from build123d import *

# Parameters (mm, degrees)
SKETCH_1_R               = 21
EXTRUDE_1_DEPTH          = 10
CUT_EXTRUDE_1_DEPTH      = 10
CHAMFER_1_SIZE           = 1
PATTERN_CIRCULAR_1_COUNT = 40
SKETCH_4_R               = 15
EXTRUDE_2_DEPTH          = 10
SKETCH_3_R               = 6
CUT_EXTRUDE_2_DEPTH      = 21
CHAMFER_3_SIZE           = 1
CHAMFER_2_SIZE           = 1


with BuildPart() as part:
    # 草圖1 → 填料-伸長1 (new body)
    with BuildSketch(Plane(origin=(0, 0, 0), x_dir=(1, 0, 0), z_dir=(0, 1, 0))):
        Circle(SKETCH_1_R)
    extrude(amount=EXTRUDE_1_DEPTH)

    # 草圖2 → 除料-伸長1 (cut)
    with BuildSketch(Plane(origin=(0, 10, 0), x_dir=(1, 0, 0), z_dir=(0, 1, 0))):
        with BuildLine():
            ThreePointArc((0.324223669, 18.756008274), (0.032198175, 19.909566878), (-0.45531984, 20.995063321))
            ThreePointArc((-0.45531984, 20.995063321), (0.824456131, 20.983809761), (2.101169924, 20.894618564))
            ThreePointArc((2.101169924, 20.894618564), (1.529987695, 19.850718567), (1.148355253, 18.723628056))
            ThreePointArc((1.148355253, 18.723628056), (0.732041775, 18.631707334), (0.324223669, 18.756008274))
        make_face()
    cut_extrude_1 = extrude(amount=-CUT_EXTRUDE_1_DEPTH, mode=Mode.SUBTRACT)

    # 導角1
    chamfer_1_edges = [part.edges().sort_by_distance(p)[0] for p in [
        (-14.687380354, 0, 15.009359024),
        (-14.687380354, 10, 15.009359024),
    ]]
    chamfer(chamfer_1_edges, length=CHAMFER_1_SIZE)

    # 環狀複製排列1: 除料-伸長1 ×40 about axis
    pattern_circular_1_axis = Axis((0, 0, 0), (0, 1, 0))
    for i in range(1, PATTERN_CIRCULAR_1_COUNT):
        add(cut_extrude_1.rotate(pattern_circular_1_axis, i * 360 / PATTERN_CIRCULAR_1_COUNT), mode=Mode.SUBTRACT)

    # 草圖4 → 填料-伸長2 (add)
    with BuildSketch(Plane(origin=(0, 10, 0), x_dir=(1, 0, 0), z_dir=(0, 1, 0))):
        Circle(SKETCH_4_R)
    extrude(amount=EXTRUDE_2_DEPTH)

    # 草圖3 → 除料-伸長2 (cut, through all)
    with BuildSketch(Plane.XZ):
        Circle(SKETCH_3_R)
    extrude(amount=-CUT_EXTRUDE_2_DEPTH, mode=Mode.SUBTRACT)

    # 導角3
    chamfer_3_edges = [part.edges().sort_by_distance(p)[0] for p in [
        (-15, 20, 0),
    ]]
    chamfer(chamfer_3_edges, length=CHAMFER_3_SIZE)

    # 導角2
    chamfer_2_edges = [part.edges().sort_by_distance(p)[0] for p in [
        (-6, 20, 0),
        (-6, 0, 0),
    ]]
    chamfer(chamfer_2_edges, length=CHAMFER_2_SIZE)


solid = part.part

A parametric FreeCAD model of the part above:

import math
import FreeCAD as App
import Part
import Sketcher

V = App.Vector


def edges_at(feature, points):
    """Names of the edges that pass closest to the given points."""
    edges = feature.Shape.Edges
    near = lambda p: min(range(len(edges)), key=lambda i: edges[i].distToShape(Part.Vertex(*p))[0])
    return sorted({f"Edge{near(p) + 1}" for p in points})

doc = App.newDocument("Part")
body = doc.addObject("PartDesign::Body", "Body")

# Sketch on XZ plane
sketch1 = doc.addObject("Sketcher::SketchObject", "Sketch")
body.addObject(sketch1)
sketch1.AttachmentSupport = (doc.XZ_Plane, [""])
sketch1.MapMode = "FlatFace"
sketch1.addGeometry(Part.Circle(V(0, 0, 0), V(0, 0, 1), 21), False)
sketch1.addConstraint([
    Sketcher.Constraint("Coincident", 0, 3, -1, 1),
    Sketcher.Constraint("Diameter", 0, 42.0),
])
pad1 = doc.addObject("PartDesign::Pad", "Pad")
body.addObject(pad1)
pad1.Profile = sketch1
pad1.Length = 10
pad1.Reversed = True

# Sketch on XZ plane
sketch2 = doc.addObject("Sketcher::SketchObject", "Sketch001")
body.addObject(sketch2)
sketch2.AttachmentSupport = (doc.XZ_Plane, [""])
sketch2.MapMode = "FlatFace"
sketch2.AttachmentOffset = App.Placement(V(0, 0, -10), App.Rotation())
sketch2.addGeometry([
    Part.ArcOfCircle(Part.Circle(V(-6.427876, -17.660444, 0), V(0, 0, 1), 6.840403), math.radians(-29.175652), math.radians(-9.216225)),
    Part.ArcOfCircle(Part.Circle(V(0.76502, -19.47106, 0), V(0, 0, 1), 0.84), math.radians(62.848076), math.radians(121.651924)),
    Part.ArcOfCircle(Part.Circle(V(7.793684, -17.101678, 0), V(0, 0, 1), 6.840403), math.radians(-166.283775), math.radians(-146.324348)),
    Part.ArcOfCircle(Part.Circle(V(0, 0, 0), V(0, 0, 1), 21), math.radians(-91.242379), math.radians(-84.257621)),
], False)
sketch2.addConstraint([
    Sketcher.Constraint("Coincident", 0, 2, 1, 2),
    Sketcher.Constraint("Coincident", 1, 1, 2, 1),
    Sketcher.Constraint("Coincident", 2, 2, 3, 2),
    Sketcher.Constraint("Coincident", 3, 1, 0, 1),
    Sketcher.Constraint("Coincident", 3, 3, -1, 1),
    Sketcher.Constraint("Equal", 0, 2),
    Sketcher.Constraint("Radius", 3, 21.0),
    Sketcher.Constraint("Radius", 1, 0.84),
    Sketcher.Constraint("Radius", 0, 6.840403),
    Sketcher.Constraint("DistanceX", 0, 3, 0, 2, 6.7521),
    Sketcher.Constraint("DistanceX", -1, 1, 1, 3, 0.76502),
    Sketcher.Constraint("DistanceY", 1, 3, -1, 1, 19.47106),
    Sketcher.Constraint("DistanceY", 0, 2, -1, 1, 18.756008),
    Sketcher.Constraint("DistanceY", 1, 1, -1, 1, 18.723628),
    Sketcher.Constraint("DistanceX", -1, 1, 2, 2, 2.10117),
])
pocket1 = doc.addObject("PartDesign::Pocket", "Pocket")
body.addObject(pocket1)
pocket1.Profile = sketch2
pocket1.Length = 10
pocket1.Reversed = True
doc.recompute()

chamfer = doc.addObject("PartDesign::Chamfer", "Chamfer")
body.addObject(chamfer)
chamfer.Base = (pocket1, edges_at(pocket1, [(-14.687, 0, 15.009), (-14.687, 10, 15.009)]))
chamfer.Size = 1
doc.recompute()

polarpattern = doc.addObject("PartDesign::PolarPattern", "PolarPattern")
body.addObject(polarpattern)
polarpattern.Originals = [pocket1]
polarpattern.Axis = (doc.Y_Axis, [""])
polarpattern.Angle = 360
polarpattern.Occurrences = 40
body.Tip = polarpattern

# Sketch on XZ plane
sketch3 = doc.addObject("Sketcher::SketchObject", "Sketch002")
body.addObject(sketch3)
sketch3.AttachmentSupport = (doc.XZ_Plane, [""])
sketch3.MapMode = "FlatFace"
sketch3.AttachmentOffset = App.Placement(V(0, 0, -10), App.Rotation())
sketch3.addGeometry(Part.Circle(V(0, 0, 0), V(0, 0, 1), 15), False)
sketch3.addConstraint([
    Sketcher.Constraint("Coincident", 0, 3, -1, 1),
    Sketcher.Constraint("Diameter", 0, 30.0),
])
pad2 = doc.addObject("PartDesign::Pad", "Pad001")
body.addObject(pad2)
pad2.Profile = sketch3
pad2.Length = 10
pad2.Reversed = True

# Sketch on XZ plane
sketch4 = doc.addObject("Sketcher::SketchObject", "Sketch003")
body.addObject(sketch4)
sketch4.AttachmentSupport = (doc.XZ_Plane, [""])
sketch4.MapMode = "FlatFace"
sketch4.addGeometry(Part.Circle(V(0, 0, 0), V(0, 0, 1), 6), False)
sketch4.addConstraint([
    Sketcher.Constraint("Coincident", 0, 3, -1, 1),
    Sketcher.Constraint("Diameter", 0, 12.0),
])
pocket2 = doc.addObject("PartDesign::Pocket", "Pocket001")
body.addObject(pocket2)
pocket2.Profile = sketch4
pocket2.Type = "ThroughAll"
doc.recompute()

chamfer2 = doc.addObject("PartDesign::Chamfer", "Chamfer001")
body.addObject(chamfer2)
chamfer2.Base = (pocket2, edges_at(pocket2, [(-15, 20, 0)]))
chamfer2.Size = 1
doc.recompute()

chamfer3 = doc.addObject("PartDesign::Chamfer", "Chamfer002")
body.addObject(chamfer3)
chamfer3.Base = (chamfer2, edges_at(chamfer2, [(-6, 20, 0), (-6, 0, 0)]))
chamfer3.Size = 1

doc.recompute()
